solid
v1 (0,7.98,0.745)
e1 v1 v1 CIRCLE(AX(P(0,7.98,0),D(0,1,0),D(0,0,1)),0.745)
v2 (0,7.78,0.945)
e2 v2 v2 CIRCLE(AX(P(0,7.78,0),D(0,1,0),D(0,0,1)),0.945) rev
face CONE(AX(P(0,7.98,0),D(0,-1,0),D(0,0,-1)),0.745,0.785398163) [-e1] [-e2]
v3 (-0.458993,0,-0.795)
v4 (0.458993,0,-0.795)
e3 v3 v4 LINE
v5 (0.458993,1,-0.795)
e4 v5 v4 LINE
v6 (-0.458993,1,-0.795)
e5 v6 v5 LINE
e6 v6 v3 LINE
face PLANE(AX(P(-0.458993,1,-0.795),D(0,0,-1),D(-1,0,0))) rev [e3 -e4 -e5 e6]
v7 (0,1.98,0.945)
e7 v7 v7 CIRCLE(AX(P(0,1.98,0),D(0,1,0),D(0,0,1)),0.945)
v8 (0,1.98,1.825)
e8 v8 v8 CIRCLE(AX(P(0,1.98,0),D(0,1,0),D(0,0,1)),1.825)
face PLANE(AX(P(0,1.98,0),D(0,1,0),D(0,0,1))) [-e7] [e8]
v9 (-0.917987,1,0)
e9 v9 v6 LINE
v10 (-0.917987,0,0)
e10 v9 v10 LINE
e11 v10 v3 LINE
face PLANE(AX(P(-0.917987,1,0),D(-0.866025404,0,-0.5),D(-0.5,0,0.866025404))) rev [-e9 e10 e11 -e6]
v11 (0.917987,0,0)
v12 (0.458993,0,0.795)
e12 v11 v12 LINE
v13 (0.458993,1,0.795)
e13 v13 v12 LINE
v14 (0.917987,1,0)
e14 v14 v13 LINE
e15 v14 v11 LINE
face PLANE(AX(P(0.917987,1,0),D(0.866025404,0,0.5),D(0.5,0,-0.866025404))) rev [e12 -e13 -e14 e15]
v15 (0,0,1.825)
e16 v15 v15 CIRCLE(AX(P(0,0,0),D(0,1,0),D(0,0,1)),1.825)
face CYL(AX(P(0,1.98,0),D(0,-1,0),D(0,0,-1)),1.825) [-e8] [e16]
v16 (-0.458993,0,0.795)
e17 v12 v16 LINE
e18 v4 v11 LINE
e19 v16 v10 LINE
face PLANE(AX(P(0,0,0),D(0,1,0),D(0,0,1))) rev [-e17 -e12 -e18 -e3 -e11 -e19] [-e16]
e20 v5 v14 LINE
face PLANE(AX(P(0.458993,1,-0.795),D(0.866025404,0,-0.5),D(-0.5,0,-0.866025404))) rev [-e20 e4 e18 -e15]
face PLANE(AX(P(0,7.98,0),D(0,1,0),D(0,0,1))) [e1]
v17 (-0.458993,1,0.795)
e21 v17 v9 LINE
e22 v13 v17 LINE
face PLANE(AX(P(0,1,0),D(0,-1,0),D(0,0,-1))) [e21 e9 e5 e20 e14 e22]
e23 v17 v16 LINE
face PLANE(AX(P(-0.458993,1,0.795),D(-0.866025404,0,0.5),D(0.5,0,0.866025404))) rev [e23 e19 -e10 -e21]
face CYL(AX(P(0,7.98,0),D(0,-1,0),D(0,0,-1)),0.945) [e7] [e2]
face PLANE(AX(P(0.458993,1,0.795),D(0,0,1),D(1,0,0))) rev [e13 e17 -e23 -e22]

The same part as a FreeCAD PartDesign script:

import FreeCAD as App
import Part
import Sketcher

V = App.Vector
Q = App.Units.Quantity


def edges_at(feature, points):
    """Names of the edges that pass closest to the given points."""
    edges = feature.Shape.Edges
    near = lambda p: min(range(len(edges)), key=lambda i: edges[i].distToShape(Part.Vertex(*p))[0])
    return sorted({f"Edge{near(p) + 1}" for p in points})


def add_polygon(sketch, points):
    """Adds a closed chain of lines whose ends are joined by coincident constraints."""
    first, n = sketch.GeometryCount, len(points)
    for a, b in zip(points, points[1:] + points[:1]):
        sketch.addGeometry(Part.LineSegment(App.Vector(*a, 0), App.Vector(*b, 0)), False)
    for i in range(n):
        sketch.addConstraint(Sketcher.Constraint("Coincident", first + i, 2, first + (i + 1) % n, 1))

doc = App.newDocument("Part")
body = doc.addObject("PartDesign::Body", "Body")

# Sketch on XZ plane
sketch1 = body.newObject("Sketcher::SketchObject", "Sketch")
sketch1.AttachmentSupport = (doc.getObject("XZ_Plane"), [""])
sketch1.MapMode = "FlatFace"
sketch1.addGeometry(Part.Circle(V(0, 0, 0), V(0, 0, 1), 1.825), False)
sketch1.addConstraint([
    Sketcher.Constraint("Coincident", 0, 3, -1, 1),
    Sketcher.Constraint("Diameter", 0, Q("3.65 mm")),
])
pad1 = body.newObject("PartDesign::Pad", "Pad")
pad1.Profile = sketch1
pad1.Length = 1.98
pad1.Reversed = True

# Sketch on XZ plane
sketch2 = body.newObject("Sketcher::SketchObject", "Sketch001")
sketch2.AttachmentSupport = (doc.getObject("XZ_Plane"), [""])
sketch2.MapMode = "FlatFace"
sketch2.AttachmentOffset = App.Placement(V(0, 0, -1.98), App.Rotation())
sketch2.addGeometry(Part.Circle(V(0, 0, 0), V(0, 0, 1), 0.945), False)
sketch2.addConstraint([
    Sketcher.Constraint("Coincident", 0, 3, -1, 1),
    Sketcher.Constraint("Diameter", 0, Q("1.89 mm")),
])
pad2 = body.newObject("PartDesign::Pad", "Pad001")
pad2.Profile = sketch2
pad2.Length = 6
pad2.Reversed = True

# Sketch on XZ plane
sketch3 = body.newObject("Sketcher::SketchObject", "Sketch002")
sketch3.AttachmentSupport = (doc.getObject("XZ_Plane"), [""])
sketch3.MapMode = "FlatFace"
add_polygon(sketch3, [(0.458993, -0.795), (0.917987, 0), (0.458993, 0.795), (-0.458993, 0.795), (-0.917987, 0), (-0.458993, -0.795)])  # lines 0-5
sketch3.addConstraint([
    Sketcher.Constraint("Horizontal", 2),
    Sketcher.Constraint("Horizontal", 5),
    Sketcher.Constraint("Symmetric", 0, 2, 3, 2, -1, 1),
    Sketcher.Constraint("Symmetric", 1, 2, 4, 2, -1, 1),
    Sketcher.Constraint("PointOnObject", 0, 2, -1),
    Sketcher.Constraint("Parallel", 0, 3),
    Sketcher.Constraint("Vertical", 2, 2, 4, 2),
    Sketcher.Constraint("Angle", 0, Q("60 deg")),
    Sketcher.Constraint("DistanceY", 4, 2, 2, 2, Q("1.59 mm")),
    Sketcher.Constraint("DistanceX", 2, 2, 2, 1, Q("0.917987 mm")),
])
pocket1 = body.newObject("PartDesign::Pocket", "Pocket")
pocket1.Profile = sketch3
pocket1.Length = 1
doc.recompute()

chamfer = body.newObject("PartDesign::Chamfer", "Chamfer")
chamfer.Base = (pocket1, edges_at(pocket1, [(-0.945, 7.98, 0)]))
chamfer.Size = 0.2

doc.recompute()
